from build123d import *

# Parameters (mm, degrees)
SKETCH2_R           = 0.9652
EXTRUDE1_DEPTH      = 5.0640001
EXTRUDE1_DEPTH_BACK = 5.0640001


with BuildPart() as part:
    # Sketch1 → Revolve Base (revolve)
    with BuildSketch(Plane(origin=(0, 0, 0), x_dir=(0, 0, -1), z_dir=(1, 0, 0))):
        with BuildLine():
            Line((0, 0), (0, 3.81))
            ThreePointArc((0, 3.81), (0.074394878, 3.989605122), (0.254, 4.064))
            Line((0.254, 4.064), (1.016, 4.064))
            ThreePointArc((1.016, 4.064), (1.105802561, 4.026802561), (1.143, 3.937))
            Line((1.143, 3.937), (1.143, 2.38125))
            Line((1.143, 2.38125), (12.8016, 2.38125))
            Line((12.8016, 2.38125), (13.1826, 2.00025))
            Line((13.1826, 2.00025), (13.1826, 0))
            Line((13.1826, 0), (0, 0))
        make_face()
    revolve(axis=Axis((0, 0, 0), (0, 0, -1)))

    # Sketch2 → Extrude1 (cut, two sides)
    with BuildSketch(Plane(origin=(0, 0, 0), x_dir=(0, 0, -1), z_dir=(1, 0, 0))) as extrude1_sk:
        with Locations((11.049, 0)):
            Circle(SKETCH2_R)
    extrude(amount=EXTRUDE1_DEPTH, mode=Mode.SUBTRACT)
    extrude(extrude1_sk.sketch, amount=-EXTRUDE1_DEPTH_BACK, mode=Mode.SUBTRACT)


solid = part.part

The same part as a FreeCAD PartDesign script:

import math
import FreeCAD as App
import Part
import Sketcher
from FreeCAD import Vector
Q = App.Units.Quantity

doc = App.newDocument("Part")
body = doc.addObject("PartDesign::Body", "Body")

sketch1 = body.newObject("Sketcher::SketchObject", "Sketch")
sketch1.AttachmentSupport = (doc.getObject("YZ_Plane"), [""])
sketch1.MapMode = "FlatFace"
sketch1.addGeometry([
    Part.LineSegment(Vector(3.81, 0, 0), Vector(0, 0, 0)),
    Part.LineSegment(Vector(0, 0, 0), Vector(0, -13.18, 0)),
    Part.LineSegment(Vector(0, -13.18, 0), Vector(2, -13.18, 0)),
    Part.LineSegment(Vector(2, -13.18, 0), Vector(2.38, -12.8, 0)),
    Part.LineSegment(Vector(2.38, -12.8, 0), Vector(2.38, -1.14, 0)),
    Part.LineSegment(Vector(2.38, -1.14, 0), Vector(3.94, -1.14, 0)),
    Part.ArcOfCircle(Part.Circle(Vector(3.94, -1.02, 0), Vector(0, 0, 1), 0.13), math.radians(-90), math.radians(0)),
    Part.LineSegment(Vector(4.06, -1.02, 0), Vector(4.06, -0.25, 0)),
    Part.ArcOfCircle(Part.Circle(Vector(3.81, -0.25, 0), Vector(0, 0, 1), 0.25), math.radians(0), math.radians(90)),
], False)
sketch1.addConstraint([
    Sketcher.Constraint("Coincident", 0, 2, 1, 1),
    Sketcher.Constraint("Coincident", 1, 2, 2, 1),
    Sketcher.Constraint("Coincident", 2, 2, 3, 1),
    Sketcher.Constraint("Coincident", 3, 2, 4, 1),
    Sketcher.Constraint("Coincident", 4, 2, 5, 1),
    Sketcher.Constraint("Tangent", 5, 2, 6, 1),
    Sketcher.Constraint("Tangent", 6, 2, 7, 1),
    Sketcher.Constraint("Tangent", 7, 2, 8, 1),
    Sketcher.Constraint("Tangent", 8, 2, 0, 1),
    Sketcher.Constraint("Horizontal", 0),
    Sketcher.Constraint("Vertical", 1),
    Sketcher.Constraint("Horizontal", 2),
    Sketcher.Constraint("Vertical", 4),
    Sketcher.Constraint("Horizontal", 5),
    Sketcher.Constraint("Vertical", 7),
    Sketcher.Constraint("Coincident", 0, 2, -1, 1),
    Sketcher.Constraint("Radius", 8, Q("0.01 in")),
    Sketcher.Constraint("Angle", 3, Q("45 deg")),
    Sketcher.Constraint("Radius", 6, Q("0.005 in")),
    Sketcher.Constraint("DistanceX", 0, 2, 0, 1, Q("0.15 in")),
    Sketcher.Constraint("DistanceY", 7, 1, 7, 2, Q("0.03 in")),
    Sketcher.Constraint("DistanceY", 1, 2, 1, 1, Q("0.519 in")),
    Sketcher.Constraint("DistanceY", 4, 1, 4, 2, Q("0.459 in")),
    Sketcher.Constraint("DistanceX", -1, 1, 3, 2, Q("0.09375 in")),
])
revolution = body.newObject("PartDesign::Revolution", "Revolution")
revolution.Profile = sketch1
revolution.ReferenceAxis = (sketch1, ["V_Axis"])
revolution.Angle = 360

sketch2 = body.newObject("Sketcher::SketchObject", "Sketch001")
sketch2.AttachmentSupport = (doc.getObject("YZ_Plane"), [""])
sketch2.MapMode = "FlatFace"
sketch2.addGeometry(Part.Circle(Vector(0, -11, 0), Vector(0, 0, 1), 1), False)
sketch2.addConstraint([
    Sketcher.Constraint("PointOnObject", 0, 3, -2),
    Sketcher.Constraint("Diameter", 0, Q("0.076 in")),
    Sketcher.Constraint("DistanceY", 0, 3, -1, 1, Q("0.435 in")),
])
pocket1 = body.newObject("PartDesign::Pocket", "Pocket")
pocket1.Profile = sketch2
pocket1.Type = "ThroughAll"
pocket1.Midplane = True

doc.recompute()
